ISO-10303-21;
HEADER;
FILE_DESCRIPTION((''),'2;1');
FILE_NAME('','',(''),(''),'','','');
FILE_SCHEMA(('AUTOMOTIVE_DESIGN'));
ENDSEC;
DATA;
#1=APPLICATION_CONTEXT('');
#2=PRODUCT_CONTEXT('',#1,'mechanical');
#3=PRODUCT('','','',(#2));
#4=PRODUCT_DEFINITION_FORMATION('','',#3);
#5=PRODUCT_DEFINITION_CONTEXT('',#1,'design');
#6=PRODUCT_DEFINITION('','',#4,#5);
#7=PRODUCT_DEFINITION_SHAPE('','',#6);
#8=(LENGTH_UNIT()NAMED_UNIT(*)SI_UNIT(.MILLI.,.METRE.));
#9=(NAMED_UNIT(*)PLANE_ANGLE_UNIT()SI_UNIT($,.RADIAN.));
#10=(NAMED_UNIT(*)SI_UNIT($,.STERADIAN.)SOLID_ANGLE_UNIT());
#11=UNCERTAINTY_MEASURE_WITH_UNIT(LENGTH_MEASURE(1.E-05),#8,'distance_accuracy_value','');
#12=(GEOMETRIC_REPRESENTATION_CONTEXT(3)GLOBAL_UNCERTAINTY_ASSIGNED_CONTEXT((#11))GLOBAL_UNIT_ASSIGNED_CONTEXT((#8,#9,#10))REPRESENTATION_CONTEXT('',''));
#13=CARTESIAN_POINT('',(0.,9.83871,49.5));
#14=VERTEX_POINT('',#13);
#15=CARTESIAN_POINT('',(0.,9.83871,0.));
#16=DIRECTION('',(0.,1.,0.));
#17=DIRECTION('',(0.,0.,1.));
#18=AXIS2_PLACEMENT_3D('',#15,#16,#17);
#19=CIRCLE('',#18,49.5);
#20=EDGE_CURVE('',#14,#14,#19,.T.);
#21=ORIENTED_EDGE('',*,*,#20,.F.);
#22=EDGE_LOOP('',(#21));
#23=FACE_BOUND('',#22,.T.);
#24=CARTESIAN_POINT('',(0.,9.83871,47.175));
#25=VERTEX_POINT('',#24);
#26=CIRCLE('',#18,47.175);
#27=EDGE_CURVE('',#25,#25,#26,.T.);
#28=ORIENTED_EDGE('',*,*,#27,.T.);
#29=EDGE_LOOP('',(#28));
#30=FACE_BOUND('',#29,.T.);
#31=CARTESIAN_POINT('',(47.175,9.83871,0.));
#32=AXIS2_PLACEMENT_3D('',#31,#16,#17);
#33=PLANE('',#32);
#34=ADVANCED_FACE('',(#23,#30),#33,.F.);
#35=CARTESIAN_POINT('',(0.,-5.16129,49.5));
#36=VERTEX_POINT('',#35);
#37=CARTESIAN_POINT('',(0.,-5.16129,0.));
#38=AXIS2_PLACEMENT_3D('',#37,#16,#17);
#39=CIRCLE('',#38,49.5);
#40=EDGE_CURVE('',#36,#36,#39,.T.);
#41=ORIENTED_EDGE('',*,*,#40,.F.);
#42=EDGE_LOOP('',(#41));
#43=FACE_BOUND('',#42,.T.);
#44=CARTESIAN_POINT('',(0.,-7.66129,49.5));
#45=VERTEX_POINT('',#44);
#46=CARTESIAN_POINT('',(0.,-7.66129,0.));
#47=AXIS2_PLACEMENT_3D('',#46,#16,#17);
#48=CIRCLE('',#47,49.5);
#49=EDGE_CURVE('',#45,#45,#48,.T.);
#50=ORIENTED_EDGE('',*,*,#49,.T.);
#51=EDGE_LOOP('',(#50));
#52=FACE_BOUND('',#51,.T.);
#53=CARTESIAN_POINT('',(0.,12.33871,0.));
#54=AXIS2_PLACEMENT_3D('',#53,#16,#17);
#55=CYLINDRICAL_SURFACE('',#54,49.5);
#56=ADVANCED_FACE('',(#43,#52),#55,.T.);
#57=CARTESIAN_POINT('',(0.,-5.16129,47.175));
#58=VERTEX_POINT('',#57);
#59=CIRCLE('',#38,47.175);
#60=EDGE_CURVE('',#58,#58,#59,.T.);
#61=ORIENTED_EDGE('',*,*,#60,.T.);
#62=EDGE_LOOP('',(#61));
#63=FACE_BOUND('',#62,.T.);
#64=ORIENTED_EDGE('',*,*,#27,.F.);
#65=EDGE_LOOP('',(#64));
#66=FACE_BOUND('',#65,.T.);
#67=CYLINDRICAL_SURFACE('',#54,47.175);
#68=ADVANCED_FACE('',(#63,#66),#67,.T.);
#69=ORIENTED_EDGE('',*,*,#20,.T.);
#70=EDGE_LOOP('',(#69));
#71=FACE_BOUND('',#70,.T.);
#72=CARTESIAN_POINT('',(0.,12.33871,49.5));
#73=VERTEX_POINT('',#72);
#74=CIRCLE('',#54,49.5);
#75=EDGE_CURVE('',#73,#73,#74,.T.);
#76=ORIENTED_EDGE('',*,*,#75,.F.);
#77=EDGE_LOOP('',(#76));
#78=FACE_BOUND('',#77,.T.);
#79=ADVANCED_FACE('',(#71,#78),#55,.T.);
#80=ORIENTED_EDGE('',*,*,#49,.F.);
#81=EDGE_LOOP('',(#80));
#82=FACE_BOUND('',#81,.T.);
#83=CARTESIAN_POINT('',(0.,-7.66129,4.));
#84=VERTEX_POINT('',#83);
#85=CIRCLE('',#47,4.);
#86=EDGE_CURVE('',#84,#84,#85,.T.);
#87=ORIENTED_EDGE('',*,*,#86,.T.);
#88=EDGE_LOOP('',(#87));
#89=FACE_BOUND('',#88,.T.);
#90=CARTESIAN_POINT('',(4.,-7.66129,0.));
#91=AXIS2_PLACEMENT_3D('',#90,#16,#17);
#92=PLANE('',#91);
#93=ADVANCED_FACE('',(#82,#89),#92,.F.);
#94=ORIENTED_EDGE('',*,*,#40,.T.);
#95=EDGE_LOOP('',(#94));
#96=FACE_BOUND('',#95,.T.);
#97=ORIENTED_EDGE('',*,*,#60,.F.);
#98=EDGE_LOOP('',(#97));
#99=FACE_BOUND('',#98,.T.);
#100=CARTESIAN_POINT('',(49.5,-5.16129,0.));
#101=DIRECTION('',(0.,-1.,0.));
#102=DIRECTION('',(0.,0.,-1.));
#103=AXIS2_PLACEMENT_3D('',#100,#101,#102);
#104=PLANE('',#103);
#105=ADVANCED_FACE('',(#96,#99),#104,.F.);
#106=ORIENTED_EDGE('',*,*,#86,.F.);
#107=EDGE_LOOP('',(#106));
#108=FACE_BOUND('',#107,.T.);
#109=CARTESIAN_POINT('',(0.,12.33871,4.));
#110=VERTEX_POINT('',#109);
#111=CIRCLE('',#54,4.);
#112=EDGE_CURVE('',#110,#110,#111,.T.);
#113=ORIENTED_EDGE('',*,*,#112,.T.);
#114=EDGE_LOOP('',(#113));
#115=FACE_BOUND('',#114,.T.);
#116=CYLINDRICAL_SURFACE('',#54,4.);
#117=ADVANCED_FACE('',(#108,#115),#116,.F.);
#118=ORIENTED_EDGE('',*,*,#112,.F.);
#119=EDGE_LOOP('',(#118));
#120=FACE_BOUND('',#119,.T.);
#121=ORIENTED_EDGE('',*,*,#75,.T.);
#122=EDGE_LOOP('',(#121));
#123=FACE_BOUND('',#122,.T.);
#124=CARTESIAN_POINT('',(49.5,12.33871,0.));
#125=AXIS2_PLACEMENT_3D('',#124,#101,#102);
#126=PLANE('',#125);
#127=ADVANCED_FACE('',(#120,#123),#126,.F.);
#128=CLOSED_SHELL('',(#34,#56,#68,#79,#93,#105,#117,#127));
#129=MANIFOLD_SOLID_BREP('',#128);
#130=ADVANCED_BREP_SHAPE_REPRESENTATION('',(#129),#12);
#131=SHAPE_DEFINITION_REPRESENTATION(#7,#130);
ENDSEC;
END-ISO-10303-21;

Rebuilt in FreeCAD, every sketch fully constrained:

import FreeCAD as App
import Part
import Sketcher

V = App.Vector
Q = App.Units.Quantity


def add_polygon(sketch, points):
    """Adds a closed chain of lines whose ends are joined by coincident constraints."""
    first, n = sketch.GeometryCount, len(points)
    for a, b in zip(points, points[1:] + points[:1]):
        sketch.addGeometry(Part.LineSegment(App.Vector(*a, 0), App.Vector(*b, 0)), False)
    for i in range(n):
        sketch.addConstraint(Sketcher.Constraint("Coincident", first + i, 2, first + (i + 1) % n, 1))

doc = App.newDocument("Part")
body = doc.addObject("PartDesign::Body", "Body")

# Sketch on XY plane
sketch1 = body.newObject("Sketcher::SketchObject", "Sketch")
sketch1.AttachmentSupport = (doc.getObject("XY_Plane"), [""])
sketch1.MapMode = "FlatFace"
add_polygon(sketch1, [(4, -7.7), (49.5, -7.7), (49.5, -5.2), (47.2, -5.2), (47.2, 9.8), (49.5, 9.8), (49.5, 12.3), (4, 12.3)])  # lines 0-7
sketch1.addConstraint([
    Sketcher.Constraint("Horizontal", 0),
    Sketcher.Constraint("Vertical", 1),
    Sketcher.Constraint("Horizontal", 2),
    Sketcher.Constraint("Vertical", 3),
    Sketcher.Constraint("Horizontal", 4),
    Sketcher.Constraint("Vertical", 5),
    Sketcher.Constraint("Horizontal", 6),
    Sketcher.Constraint("Vertical", 7),
    Sketcher.Constraint("Vertical", 1, 2, 4, 2),
    Sketcher.Constraint("Equal", 1, 5),
    Sketcher.Constraint("DistanceY", 3, 1, 3, 2, Q("15 mm")),
    Sketcher.Constraint("DistanceY", 7, 2, 7, 1, Q("20 mm")),
    Sketcher.Constraint("DistanceX", 0, 1, 0, 2, Q("45.5 mm")),
    Sketcher.Constraint("DistanceX", -1, 1, 6, 2, Q("4 mm")),
    Sketcher.Constraint("DistanceX", 2, 2, 2, 1, Q("2.325 mm")),
    Sketcher.Constraint("DistanceY", 0, 2, -1, 1, Q("7.66129 mm")),
])
revolution = body.newObject("PartDesign::Revolution", "Revolution")
revolution.Profile = sketch1
revolution.ReferenceAxis = (sketch1, ["V_Axis"])
revolution.Angle = 360

doc.recompute()
